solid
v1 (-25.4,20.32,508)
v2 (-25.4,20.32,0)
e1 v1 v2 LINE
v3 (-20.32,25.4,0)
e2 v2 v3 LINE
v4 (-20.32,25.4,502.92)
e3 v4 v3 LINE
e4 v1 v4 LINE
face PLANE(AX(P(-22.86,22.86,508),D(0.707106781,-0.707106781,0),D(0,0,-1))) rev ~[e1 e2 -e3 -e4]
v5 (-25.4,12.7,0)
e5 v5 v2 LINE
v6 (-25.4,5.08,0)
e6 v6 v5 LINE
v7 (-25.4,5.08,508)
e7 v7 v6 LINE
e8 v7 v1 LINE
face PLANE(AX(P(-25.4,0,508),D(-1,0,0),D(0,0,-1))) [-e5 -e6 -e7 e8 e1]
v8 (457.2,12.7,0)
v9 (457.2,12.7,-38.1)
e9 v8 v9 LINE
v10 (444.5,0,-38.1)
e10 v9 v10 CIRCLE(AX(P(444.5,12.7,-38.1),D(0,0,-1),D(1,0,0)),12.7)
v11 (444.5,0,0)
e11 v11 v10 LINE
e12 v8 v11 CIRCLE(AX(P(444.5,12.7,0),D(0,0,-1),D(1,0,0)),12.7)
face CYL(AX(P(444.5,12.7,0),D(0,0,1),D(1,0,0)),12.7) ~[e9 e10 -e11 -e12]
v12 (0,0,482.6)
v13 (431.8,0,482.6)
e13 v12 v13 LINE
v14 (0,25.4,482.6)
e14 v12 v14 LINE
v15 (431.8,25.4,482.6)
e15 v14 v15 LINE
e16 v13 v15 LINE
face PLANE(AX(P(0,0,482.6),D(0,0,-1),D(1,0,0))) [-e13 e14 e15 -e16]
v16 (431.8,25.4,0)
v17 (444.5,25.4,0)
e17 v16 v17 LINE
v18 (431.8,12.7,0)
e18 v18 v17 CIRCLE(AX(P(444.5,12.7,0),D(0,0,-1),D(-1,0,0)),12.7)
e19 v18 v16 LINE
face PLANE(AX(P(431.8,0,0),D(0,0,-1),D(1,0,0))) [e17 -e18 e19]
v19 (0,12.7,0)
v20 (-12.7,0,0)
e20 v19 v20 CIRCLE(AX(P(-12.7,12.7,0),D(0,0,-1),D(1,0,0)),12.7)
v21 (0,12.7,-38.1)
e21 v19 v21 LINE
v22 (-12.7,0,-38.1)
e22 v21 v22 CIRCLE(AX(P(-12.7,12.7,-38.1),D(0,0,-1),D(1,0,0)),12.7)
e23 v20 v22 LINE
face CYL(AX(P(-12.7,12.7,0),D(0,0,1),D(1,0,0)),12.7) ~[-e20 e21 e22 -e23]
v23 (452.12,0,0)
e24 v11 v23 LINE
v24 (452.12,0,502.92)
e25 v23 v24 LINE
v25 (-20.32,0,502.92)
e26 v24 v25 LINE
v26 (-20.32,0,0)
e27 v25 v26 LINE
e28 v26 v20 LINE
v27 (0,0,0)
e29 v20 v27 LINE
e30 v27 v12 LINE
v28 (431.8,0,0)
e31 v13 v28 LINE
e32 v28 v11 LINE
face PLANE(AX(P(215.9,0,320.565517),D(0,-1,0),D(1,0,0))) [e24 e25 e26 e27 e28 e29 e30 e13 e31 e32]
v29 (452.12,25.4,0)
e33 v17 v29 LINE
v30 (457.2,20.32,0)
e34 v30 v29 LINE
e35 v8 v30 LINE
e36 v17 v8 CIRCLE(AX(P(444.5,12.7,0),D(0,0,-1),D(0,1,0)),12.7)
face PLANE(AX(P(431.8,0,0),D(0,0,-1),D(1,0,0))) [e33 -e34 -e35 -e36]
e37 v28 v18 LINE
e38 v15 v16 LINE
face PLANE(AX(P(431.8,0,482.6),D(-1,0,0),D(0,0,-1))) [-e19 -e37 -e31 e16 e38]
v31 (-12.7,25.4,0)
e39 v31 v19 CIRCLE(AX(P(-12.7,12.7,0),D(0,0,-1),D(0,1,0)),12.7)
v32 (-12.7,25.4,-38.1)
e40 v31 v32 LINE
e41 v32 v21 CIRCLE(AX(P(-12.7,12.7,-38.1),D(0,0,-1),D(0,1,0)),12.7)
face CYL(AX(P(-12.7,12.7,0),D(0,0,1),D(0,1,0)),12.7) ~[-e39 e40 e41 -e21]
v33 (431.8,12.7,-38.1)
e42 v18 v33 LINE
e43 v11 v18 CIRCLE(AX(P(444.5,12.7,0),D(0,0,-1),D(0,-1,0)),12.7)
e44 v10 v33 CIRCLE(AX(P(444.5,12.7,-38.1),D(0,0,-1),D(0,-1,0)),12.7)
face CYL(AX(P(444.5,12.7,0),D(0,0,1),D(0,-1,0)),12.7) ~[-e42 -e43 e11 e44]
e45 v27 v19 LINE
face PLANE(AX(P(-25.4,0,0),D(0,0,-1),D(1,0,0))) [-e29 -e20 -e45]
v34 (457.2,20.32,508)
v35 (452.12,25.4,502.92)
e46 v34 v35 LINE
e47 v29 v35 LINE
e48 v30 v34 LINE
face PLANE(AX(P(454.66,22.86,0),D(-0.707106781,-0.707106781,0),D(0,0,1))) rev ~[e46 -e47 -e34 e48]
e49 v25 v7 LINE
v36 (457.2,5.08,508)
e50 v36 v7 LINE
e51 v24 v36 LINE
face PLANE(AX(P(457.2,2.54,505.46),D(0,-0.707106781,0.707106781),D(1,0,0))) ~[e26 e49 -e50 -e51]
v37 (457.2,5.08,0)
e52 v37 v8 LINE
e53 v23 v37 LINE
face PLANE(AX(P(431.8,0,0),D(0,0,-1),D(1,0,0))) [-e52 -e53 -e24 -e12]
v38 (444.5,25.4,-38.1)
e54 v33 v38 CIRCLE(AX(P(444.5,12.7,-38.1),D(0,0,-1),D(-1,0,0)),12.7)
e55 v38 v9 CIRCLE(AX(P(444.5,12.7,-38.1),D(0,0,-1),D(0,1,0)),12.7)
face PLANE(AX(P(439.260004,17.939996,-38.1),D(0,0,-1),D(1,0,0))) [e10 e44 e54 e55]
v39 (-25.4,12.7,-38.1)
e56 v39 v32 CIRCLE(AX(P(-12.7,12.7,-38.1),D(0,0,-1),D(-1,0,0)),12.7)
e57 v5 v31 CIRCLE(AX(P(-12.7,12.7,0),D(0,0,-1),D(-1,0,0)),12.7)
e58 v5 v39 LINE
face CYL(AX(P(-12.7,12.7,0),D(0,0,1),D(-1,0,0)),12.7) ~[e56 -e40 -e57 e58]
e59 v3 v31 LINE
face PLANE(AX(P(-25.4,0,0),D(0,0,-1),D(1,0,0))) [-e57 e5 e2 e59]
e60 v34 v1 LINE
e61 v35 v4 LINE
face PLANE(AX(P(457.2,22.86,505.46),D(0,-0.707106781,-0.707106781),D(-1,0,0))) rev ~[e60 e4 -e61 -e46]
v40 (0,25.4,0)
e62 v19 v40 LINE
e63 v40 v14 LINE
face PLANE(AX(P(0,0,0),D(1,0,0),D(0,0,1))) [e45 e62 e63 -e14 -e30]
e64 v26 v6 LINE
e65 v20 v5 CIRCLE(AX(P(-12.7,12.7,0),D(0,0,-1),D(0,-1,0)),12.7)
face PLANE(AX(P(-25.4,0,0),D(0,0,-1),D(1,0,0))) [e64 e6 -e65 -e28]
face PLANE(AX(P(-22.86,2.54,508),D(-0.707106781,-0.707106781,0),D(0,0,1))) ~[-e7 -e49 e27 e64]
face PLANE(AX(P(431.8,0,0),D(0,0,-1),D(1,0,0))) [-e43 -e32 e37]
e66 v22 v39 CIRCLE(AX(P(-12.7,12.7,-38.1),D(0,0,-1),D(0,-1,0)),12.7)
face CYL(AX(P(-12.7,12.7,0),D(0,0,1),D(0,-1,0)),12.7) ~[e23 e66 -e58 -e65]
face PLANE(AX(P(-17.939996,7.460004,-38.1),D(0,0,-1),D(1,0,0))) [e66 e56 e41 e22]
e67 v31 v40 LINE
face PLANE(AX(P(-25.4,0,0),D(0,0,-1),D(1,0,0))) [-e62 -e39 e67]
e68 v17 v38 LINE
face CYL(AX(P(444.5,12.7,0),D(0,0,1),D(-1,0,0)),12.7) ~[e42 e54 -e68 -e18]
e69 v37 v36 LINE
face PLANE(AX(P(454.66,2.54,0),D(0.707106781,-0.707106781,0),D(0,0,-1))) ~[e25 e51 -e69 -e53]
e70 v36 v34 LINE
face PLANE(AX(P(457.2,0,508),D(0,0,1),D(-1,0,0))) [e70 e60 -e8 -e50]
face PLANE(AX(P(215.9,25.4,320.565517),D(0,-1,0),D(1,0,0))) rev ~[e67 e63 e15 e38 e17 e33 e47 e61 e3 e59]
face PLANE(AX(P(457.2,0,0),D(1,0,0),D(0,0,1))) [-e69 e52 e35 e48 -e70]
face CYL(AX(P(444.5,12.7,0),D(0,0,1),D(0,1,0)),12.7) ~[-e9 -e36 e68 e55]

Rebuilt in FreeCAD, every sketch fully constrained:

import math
import FreeCAD as App
import Part
import Sketcher

V = App.Vector
Q = App.Units.Quantity


def edges_at(feature, points):
    """Names of the edges that pass closest to the given points."""
    edges = feature.Shape.Edges
    near = lambda p: min(range(len(edges)), key=lambda i: edges[i].distToShape(Part.Vertex(*p))[0])
    return sorted({f"Edge{near(p) + 1}" for p in points})

doc = App.newDocument("Part")
body = doc.addObject("PartDesign::Body", "Body")

# Sketch on XZ plane
sketch1 = body.newObject("Sketcher::SketchObject", "Sketch")
sketch1.AttachmentSupport = (doc.getObject("XZ_Plane"), [""])
sketch1.MapMode = "FlatFace"
sketch1.addGeometry([
    Part.LineSegment(V(-25, 0, 0), V(0, 0, 0)),  # 0
    Part.LineSegment(V(0, 0, 0), V(0, 483, 0)),  # 1
    Part.LineSegment(V(0, 483, 0), V(432, 483, 0)),  # 2
    Part.LineSegment(V(432, 483, 0), V(432, 0, 0)),  # 3
    Part.LineSegment(V(432, 0, 0), V(457, 0, 0)),  # 4
    Part.LineSegment(V(457, 0, 0), V(457, 508, 0)),  # 5
    Part.LineSegment(V(457, 508, 0), V(-25, 508, 0)),  # 6
    Part.LineSegment(V(-25, 508, 0), V(-25, 0, 0)),  # 7
], False)
sketch1.addConstraint([
    Sketcher.Constraint("Coincident", 0, 2, 1, 1),
    Sketcher.Constraint("Coincident", 1, 2, 2, 1),
    Sketcher.Constraint("Coincident", 2, 2, 3, 1),
    Sketcher.Constraint("Coincident", 3, 2, 4, 1),
    Sketcher.Constraint("Coincident", 4, 2, 5, 1),
    Sketcher.Constraint("Coincident", 5, 2, 6, 1),
    Sketcher.Constraint("Coincident", 6, 2, 7, 1),
    Sketcher.Constraint("Coincident", 7, 2, 0, 1),
    Sketcher.Constraint("Horizontal", 0),
    Sketcher.Constraint("Vertical", 1),
    Sketcher.Constraint("Horizontal", 2),
    Sketcher.Constraint("Vertical", 3),
    Sketcher.Constraint("Horizontal", 4),
    Sketcher.Constraint("Vertical", 5),
    Sketcher.Constraint("Horizontal", 6),
    Sketcher.Constraint("Vertical", 7),
    Sketcher.Constraint("Coincident", 0, 2, -1, 1),
    Sketcher.Constraint("PointOnObject", 3, 2, -1),
    Sketcher.Constraint("Equal", 0, 4),
    Sketcher.Constraint("Equal", 6, 1),
    Sketcher.Constraint("DistanceX", 0, 1, 0, 2, Q("1 in")),
    Sketcher.Constraint("DistanceX", 2, 1, 2, 2, Q("17 in")),
    Sketcher.Constraint("DistanceY", 5, 1, 5, 2, Q("20 in")),
])
pad1 = body.newObject("PartDesign::Pad", "Pad")
pad1.Profile = sketch1
pad1.Length = Q("1 in")
pad1.Reversed = True

# Sketch on XY plane
sketch2 = body.newObject("Sketcher::SketchObject", "Sketch001")
sketch2.AttachmentSupport = (doc.getObject("XY_Plane"), [""])
sketch2.MapMode = "FlatFace"
sketch2.addGeometry([
    Part.ArcOfCircle(Part.Circle(V(-13, 13, 0), V(0, 0, 1), 13), math.radians(180), math.radians(270)),
    Part.ArcOfCircle(Part.Circle(V(-13, 13, 0), V(0, 0, 1), 13), math.radians(90), math.radians(180)),
    Part.ArcOfCircle(Part.Circle(V(-13, 13, 0), V(0, 0, 1), 13), math.radians(0), math.radians(90)),
    Part.ArcOfCircle(Part.Circle(V(-13, 13, 0), V(0, 0, 1), 13), math.radians(-90), math.radians(0)),
], False)
sketch2.addConstraint([
    Sketcher.Constraint("Tangent", 0, 1, 1, 2),
    Sketcher.Constraint("Tangent", 1, 1, 2, 2),
    Sketcher.Constraint("Tangent", 2, 1, 3, 2),
    Sketcher.Constraint("Tangent", 3, 1, 0, 2),
    Sketcher.Constraint("Equal", 0, 1),
    Sketcher.Constraint("PointOnObject", 2, 1, -2),
    Sketcher.Constraint("PointOnObject", 3, 1, -1),
    Sketcher.Constraint("Horizontal", 3, 3, 0, 1),
    Sketcher.Constraint("Horizontal", 0, 1, 2, 1),
    Sketcher.Constraint("Vertical", 3, 3, 1, 1),
    Sketcher.Constraint("Vertical", 1, 1, 3, 1),
    Sketcher.Constraint("Radius", 0, Q("0.5 in")),
])
pad2 = body.newObject("PartDesign::Pad", "Pad001")
pad2.Profile = sketch2
pad2.Length = Q("1.5 in")
pad2.Reversed = True

# Sketch on XY plane
sketch3 = body.newObject("Sketcher::SketchObject", "Sketch002")
sketch3.AttachmentSupport = (doc.getObject("XY_Plane"), [""])
sketch3.MapMode = "FlatFace"
sketch3.addGeometry([
    Part.ArcOfCircle(Part.Circle(V(444, 13, 0), V(0, 0, 1), 13), math.radians(90), math.radians(180)),
    Part.ArcOfCircle(Part.Circle(V(444, 13, 0), V(0, 0, 1), 13), math.radians(0), math.radians(90)),
    Part.ArcOfCircle(Part.Circle(V(444, 13, 0), V(0, 0, 1), 13), math.radians(-90), math.radians(0)),
    Part.ArcOfCircle(Part.Circle(V(444, 13, 0), V(0, 0, 1), 13), math.radians(180), math.radians(270)),
], False)
sketch3.addConstraint([
    Sketcher.Constraint("Tangent", 0, 1, 1, 2),
    Sketcher.Constraint("Tangent", 1, 1, 2, 2),
    Sketcher.Constraint("Tangent", 2, 1, 3, 2),
    Sketcher.Constraint("Tangent", 3, 1, 0, 2),
    Sketcher.Constraint("Equal", 0, 1),
    Sketcher.Constraint("PointOnObject", 2, 1, -1),
    Sketcher.Constraint("Horizontal", 3, 3, 1, 1),
    Sketcher.Constraint("Horizontal", 1, 1, 3, 1),
    Sketcher.Constraint("Vertical", 3, 3, 0, 1),
    Sketcher.Constraint("Vertical", 0, 1, 2, 1),
    Sketcher.Constraint("Radius", 0, Q("0.5 in")),
    Sketcher.Constraint("DistanceX", -1, 1, 1, 1, Q("18 in")),
])
pad3 = body.newObject("PartDesign::Pad", "Pad002")
pad3.Profile = sketch3
pad3.Length = Q("1.5 in")
pad3.Reversed = True
doc.recompute()

chamfer = body.newObject("PartDesign::Chamfer", "Chamfer")
chamfer.Base = (pad3, edges_at(pad3, [
    (457.2, 25.4, 254),
    (457.2, 0, 254),
    (-25.4, 25.4, 254),
    (-25.4, 0, 254),
    (215.9, 0, 508),
    (215.9, 25.4, 508),
]))
chamfer.Size = Q("0.2 in")

doc.recompute()
